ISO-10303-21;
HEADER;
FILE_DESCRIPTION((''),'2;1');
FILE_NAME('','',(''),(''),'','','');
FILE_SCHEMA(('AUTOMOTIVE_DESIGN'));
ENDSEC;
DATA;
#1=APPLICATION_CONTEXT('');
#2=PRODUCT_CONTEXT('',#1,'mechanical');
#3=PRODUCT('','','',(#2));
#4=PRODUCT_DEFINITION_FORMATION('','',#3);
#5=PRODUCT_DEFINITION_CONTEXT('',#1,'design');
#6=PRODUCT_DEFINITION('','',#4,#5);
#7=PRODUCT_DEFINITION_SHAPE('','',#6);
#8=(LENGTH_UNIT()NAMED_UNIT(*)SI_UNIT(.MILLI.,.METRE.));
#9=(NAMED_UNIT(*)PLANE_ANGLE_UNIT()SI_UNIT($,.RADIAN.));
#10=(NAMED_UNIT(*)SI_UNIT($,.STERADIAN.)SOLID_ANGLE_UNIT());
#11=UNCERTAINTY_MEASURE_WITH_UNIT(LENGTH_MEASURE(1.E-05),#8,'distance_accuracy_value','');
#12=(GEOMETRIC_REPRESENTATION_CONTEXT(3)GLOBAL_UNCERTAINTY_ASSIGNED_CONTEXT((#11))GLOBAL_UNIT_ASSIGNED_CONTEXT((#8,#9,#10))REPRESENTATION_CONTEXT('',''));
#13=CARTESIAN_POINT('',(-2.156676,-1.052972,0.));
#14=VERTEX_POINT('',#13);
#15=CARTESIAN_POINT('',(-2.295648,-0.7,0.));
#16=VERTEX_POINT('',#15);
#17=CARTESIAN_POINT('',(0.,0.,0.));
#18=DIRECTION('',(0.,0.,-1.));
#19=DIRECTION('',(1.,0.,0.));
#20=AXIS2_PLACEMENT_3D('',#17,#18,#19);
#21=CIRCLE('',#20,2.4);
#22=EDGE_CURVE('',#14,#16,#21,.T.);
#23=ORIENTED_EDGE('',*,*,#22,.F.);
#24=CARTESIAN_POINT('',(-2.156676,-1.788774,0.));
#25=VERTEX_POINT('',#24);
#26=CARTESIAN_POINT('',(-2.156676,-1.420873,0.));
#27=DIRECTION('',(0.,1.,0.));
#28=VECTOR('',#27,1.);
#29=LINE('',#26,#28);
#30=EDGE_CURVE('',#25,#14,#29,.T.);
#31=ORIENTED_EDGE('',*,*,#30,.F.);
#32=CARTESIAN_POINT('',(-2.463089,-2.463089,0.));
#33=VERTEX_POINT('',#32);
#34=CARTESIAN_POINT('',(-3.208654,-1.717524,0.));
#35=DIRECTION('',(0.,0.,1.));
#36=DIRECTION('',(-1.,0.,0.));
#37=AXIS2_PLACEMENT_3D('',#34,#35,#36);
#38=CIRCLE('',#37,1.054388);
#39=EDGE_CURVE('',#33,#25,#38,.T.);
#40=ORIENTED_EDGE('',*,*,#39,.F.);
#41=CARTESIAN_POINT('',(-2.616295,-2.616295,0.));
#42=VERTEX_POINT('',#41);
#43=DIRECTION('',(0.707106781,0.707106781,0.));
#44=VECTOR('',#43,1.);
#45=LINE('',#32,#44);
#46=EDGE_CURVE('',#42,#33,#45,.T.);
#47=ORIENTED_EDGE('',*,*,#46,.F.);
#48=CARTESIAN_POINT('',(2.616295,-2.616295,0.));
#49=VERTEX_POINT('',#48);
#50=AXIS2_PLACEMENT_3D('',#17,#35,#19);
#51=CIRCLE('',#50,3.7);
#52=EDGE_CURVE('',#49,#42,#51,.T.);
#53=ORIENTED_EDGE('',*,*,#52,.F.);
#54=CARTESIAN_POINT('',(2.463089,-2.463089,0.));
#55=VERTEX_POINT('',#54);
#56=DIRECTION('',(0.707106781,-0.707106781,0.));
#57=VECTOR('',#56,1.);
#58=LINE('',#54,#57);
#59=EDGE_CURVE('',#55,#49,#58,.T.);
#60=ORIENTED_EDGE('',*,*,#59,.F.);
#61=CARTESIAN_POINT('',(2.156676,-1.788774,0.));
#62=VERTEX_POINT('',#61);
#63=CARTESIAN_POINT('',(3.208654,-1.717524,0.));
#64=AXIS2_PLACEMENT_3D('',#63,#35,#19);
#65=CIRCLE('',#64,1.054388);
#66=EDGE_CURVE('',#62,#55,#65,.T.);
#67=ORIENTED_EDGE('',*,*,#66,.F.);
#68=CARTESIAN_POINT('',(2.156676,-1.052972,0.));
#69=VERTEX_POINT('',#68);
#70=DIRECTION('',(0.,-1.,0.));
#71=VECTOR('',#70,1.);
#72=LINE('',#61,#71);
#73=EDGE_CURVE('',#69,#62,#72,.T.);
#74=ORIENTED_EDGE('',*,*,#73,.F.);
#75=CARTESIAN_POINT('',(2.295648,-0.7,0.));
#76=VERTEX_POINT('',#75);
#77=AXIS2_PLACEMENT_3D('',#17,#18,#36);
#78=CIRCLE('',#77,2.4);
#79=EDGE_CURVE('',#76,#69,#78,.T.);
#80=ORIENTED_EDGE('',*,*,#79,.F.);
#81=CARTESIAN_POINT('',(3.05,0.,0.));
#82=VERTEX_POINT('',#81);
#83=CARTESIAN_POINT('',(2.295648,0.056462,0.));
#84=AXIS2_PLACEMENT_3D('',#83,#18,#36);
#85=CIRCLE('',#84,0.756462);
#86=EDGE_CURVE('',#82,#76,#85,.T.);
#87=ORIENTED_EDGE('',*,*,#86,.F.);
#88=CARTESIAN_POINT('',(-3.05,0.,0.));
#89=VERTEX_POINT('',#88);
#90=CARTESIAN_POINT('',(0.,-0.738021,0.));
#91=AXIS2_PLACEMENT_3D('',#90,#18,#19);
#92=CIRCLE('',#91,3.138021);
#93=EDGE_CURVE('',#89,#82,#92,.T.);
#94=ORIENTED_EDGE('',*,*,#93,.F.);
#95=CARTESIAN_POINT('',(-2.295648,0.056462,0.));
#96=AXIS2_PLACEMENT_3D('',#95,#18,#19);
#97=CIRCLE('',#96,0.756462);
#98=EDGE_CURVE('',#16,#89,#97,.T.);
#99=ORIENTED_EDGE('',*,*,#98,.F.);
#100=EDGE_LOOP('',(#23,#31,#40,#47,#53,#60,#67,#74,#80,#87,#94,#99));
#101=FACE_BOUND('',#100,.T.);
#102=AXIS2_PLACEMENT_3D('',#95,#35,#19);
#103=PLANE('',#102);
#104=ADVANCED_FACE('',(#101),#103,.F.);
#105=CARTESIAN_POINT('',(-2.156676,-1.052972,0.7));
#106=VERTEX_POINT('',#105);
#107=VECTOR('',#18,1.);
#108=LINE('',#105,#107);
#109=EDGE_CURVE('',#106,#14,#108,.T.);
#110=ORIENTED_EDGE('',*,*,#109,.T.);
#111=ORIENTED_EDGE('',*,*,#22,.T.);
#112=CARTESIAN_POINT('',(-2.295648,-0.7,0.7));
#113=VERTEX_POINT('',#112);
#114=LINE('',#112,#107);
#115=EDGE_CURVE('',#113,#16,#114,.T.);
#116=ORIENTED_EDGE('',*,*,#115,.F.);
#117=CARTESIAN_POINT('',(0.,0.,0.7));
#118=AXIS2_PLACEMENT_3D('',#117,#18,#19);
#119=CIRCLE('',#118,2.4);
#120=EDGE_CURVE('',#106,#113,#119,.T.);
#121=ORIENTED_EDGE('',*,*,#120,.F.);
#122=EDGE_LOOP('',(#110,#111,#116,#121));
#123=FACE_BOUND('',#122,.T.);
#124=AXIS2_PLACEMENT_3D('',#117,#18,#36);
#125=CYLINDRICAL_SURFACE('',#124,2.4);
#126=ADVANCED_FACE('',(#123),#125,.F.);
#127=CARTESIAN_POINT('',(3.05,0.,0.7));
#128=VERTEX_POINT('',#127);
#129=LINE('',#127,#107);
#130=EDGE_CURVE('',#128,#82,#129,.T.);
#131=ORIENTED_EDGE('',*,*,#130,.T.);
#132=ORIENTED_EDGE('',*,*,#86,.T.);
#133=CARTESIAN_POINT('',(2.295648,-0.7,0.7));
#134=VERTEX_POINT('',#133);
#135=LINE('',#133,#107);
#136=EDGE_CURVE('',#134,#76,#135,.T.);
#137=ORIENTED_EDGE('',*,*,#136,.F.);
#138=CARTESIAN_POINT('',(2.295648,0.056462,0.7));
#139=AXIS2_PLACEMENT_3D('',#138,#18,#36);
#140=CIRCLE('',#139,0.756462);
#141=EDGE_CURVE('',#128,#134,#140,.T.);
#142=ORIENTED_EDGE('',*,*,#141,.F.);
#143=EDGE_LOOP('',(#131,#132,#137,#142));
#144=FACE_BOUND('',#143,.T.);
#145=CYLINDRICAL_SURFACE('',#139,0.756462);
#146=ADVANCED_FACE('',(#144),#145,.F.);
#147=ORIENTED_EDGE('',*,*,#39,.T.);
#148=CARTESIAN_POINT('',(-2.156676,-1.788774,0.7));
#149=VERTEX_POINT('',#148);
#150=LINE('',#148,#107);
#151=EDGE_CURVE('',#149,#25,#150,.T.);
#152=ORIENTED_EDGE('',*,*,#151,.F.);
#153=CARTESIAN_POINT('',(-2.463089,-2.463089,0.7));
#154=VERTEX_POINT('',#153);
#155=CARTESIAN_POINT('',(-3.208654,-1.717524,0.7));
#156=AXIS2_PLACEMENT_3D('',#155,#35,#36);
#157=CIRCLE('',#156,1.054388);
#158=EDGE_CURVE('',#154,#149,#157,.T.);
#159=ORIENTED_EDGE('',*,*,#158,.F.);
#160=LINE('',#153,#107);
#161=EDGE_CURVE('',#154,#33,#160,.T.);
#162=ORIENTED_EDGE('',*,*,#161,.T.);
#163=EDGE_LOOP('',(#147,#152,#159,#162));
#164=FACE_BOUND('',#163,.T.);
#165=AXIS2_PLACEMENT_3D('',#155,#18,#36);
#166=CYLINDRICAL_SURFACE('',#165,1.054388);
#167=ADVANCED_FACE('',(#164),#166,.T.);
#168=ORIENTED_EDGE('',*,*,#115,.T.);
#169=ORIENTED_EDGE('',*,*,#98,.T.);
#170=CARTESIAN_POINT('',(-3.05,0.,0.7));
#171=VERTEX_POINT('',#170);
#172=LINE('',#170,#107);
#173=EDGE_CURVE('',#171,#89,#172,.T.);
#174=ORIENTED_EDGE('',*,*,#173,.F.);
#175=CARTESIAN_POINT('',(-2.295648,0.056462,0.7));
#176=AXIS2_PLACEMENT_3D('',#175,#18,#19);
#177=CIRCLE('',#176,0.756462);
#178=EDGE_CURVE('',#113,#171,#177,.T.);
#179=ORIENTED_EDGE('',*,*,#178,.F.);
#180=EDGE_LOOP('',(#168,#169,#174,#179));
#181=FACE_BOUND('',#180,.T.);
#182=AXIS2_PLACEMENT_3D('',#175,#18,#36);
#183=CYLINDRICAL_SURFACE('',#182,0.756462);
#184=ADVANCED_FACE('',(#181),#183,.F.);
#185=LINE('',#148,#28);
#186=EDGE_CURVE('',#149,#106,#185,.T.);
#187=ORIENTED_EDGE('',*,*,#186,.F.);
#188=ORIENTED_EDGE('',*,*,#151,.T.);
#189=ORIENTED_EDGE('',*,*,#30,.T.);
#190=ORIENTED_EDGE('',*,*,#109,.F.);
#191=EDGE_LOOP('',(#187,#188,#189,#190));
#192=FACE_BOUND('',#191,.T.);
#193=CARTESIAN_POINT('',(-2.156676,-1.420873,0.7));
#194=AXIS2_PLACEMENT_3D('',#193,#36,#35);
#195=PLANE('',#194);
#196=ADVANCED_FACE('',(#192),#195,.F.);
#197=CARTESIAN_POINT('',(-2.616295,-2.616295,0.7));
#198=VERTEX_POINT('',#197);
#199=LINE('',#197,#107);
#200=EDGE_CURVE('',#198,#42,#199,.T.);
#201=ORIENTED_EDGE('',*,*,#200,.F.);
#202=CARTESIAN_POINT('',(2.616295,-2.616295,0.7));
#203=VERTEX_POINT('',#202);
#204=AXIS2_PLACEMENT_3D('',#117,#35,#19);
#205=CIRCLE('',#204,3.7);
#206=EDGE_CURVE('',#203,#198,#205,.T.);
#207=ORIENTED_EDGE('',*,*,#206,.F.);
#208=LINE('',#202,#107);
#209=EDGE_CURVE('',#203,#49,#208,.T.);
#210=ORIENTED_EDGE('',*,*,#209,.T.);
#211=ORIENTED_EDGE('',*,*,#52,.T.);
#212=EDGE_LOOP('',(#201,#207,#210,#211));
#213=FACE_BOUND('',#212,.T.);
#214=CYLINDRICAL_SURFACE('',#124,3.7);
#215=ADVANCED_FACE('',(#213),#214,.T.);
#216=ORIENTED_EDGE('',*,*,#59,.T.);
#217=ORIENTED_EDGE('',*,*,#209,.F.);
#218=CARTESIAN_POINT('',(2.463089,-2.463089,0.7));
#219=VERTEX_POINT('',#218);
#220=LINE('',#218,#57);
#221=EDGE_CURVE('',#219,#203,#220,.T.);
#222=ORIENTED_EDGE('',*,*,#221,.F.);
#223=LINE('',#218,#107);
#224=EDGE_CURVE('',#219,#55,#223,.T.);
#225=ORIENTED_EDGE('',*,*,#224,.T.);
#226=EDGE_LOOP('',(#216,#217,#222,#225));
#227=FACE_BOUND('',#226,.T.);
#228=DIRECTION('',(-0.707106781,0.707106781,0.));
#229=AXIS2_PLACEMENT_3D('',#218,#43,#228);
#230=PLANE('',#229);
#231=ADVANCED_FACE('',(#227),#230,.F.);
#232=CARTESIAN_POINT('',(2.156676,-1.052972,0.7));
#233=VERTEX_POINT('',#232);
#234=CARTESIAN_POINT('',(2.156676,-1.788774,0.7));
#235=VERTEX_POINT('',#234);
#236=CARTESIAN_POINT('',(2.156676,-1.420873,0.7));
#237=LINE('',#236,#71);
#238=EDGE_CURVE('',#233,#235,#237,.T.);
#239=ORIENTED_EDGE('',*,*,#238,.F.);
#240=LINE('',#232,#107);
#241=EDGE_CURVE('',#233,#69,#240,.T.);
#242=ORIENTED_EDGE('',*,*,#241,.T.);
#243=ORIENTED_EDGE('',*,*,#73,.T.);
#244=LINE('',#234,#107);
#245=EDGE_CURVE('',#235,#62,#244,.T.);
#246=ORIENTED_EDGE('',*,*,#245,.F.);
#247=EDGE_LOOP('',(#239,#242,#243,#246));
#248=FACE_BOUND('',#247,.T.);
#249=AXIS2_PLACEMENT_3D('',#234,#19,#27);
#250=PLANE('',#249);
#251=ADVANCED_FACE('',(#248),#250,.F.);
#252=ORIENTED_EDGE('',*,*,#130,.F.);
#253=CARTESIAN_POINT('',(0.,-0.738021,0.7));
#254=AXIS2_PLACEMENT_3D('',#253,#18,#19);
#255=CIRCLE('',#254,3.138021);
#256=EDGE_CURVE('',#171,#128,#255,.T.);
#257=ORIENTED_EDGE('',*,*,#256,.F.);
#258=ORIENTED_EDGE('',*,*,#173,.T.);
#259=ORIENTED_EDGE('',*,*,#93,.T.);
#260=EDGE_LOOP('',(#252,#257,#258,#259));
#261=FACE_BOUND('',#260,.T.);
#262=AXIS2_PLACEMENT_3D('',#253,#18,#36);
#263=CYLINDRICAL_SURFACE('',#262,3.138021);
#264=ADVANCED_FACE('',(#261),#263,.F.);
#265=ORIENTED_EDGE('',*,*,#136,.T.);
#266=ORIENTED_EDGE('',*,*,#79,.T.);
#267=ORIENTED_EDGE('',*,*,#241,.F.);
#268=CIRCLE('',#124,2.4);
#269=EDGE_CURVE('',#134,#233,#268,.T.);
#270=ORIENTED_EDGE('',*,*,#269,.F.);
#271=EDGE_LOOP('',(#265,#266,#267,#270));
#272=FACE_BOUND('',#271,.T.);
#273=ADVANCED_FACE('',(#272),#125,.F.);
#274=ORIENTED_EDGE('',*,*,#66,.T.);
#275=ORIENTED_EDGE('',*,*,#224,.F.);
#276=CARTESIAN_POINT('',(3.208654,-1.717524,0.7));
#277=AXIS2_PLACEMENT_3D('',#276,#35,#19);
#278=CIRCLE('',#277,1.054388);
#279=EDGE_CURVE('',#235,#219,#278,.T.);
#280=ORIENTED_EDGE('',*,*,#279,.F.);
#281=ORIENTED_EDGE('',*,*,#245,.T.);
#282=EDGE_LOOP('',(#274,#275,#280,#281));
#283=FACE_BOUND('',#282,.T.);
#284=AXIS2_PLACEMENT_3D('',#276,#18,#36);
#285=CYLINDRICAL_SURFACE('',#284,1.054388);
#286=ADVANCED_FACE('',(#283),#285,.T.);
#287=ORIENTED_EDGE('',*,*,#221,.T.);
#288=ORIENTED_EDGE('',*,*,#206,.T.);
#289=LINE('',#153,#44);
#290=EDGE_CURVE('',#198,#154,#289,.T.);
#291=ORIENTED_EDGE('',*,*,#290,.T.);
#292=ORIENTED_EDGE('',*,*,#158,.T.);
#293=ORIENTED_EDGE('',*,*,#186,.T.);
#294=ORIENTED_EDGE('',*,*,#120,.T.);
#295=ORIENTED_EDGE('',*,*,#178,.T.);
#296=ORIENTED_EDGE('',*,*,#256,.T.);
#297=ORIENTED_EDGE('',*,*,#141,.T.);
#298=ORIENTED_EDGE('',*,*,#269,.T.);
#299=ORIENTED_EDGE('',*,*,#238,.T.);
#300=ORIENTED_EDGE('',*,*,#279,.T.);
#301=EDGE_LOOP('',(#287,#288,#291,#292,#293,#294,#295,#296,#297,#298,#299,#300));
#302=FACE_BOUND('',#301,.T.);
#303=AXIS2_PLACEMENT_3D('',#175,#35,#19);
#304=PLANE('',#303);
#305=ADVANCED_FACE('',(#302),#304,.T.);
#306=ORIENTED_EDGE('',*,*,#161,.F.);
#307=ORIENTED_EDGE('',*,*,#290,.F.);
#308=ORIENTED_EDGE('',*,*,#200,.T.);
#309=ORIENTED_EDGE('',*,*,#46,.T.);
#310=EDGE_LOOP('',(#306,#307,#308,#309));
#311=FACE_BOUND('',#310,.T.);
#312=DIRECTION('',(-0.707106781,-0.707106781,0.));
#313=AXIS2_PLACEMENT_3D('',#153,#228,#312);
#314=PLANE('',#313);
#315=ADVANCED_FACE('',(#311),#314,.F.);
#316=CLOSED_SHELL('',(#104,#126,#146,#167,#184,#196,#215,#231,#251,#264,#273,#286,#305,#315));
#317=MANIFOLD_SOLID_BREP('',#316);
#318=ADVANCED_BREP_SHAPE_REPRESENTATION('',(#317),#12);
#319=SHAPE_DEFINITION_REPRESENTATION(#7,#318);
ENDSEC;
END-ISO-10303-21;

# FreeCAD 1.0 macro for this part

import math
import FreeCAD as App
import Part
import Sketcher
from FreeCAD import Vector
Q = App.Units.Quantity

doc = App.newDocument("Part")
body = doc.addObject("PartDesign::Body", "Body")

# Sketch on XY plane
sketch1 = doc.addObject("Sketcher::SketchObject", "Sketch")
body.addObject(sketch1)
sketch1.AttachmentSupport = (doc.XY_Plane, [""])
sketch1.MapMode = "FlatFace"
sketch1.addGeometry(Part.LineSegment(Vector(-2.16, -1.79, 0), Vector(-2.16, -1.05, 0)), False)
sketch1.addGeometry(Part.ArcOfCircle(Part.Circle(Vector(0, 0, 0), Vector(0, 0, 1), 2.4), math.radians(-163.04), math.radians(-153.98)), False)
sketch1.addGeometry(Part.ArcOfCircle(Part.Circle(Vector(-2.3, 0.06, 0), Vector(0, 0, 1), 0.76), math.radians(-176), math.radians(-90)), False)
sketch1.addGeometry(Part.ArcOfCircle(Part.Circle(Vector(0, -0.74, 0), Vector(0, 0, 1), 3.14), math.radians(14), math.radians(166)), False)
sketch1.addGeometry(Part.ArcOfCircle(Part.Circle(Vector(2.3, 0.06, 0), Vector(0, 0, 1), 0.76), math.radians(-90), math.radians(-4)), False)
sketch1.addGeometry(Part.ArcOfCircle(Part.Circle(Vector(0, 0, 0), Vector(0, 0, 1), 2.4), math.radians(-26.02), math.radians(-16.96)), False)
sketch1.addGeometry(Part.LineSegment(Vector(2.16, -1.05, 0), Vector(2.16, -1.79, 0)), False)
sketch1.addGeometry(Part.ArcOfCircle(Part.Circle(Vector(3.21, -1.72, 0), Vector(0, 0, 1), 1.05), math.radians(-176), math.radians(-135)), False)
sketch1.addGeometry(Part.LineSegment(Vector(2.46, -2.46, 0), Vector(2.62, -2.62, 0)), False)
sketch1.addGeometry(Part.ArcOfCircle(Part.Circle(Vector(0, 0, 0), Vector(0, 0, 1), 3.7), math.radians(-45), math.radians(225)), False)
sketch1.addGeometry(Part.LineSegment(Vector(-2.62, -2.62, 0), Vector(-2.46, -2.46, 0)), False)
sketch1.addGeometry(Part.ArcOfCircle(Part.Circle(Vector(-3.21, -1.72, 0), Vector(0, 0, 1), 1.05), math.radians(-45), math.radians(-4)), False)
sketch1.addConstraint(Sketcher.Constraint("Coincident", 0, 2, 1, 2))
sketch1.addConstraint(Sketcher.Constraint("Coincident", 1, 1, 2, 2))
sketch1.addConstraint(Sketcher.Constraint("Coincident", 2, 1, 3, 2))
sketch1.addConstraint(Sketcher.Constraint("Coincident", 3, 1, 4, 2))
sketch1.addConstraint(Sketcher.Constraint("Coincident", 4, 1, 5, 2))
sketch1.addConstraint(Sketcher.Constraint("Coincident", 5, 1, 6, 1))
sketch1.addConstraint(Sketcher.Constraint("Coincident", 6, 2, 7, 1))
sketch1.addConstraint(Sketcher.Constraint("Tangent", 7, 2, 8, 1))
sketch1.addConstraint(Sketcher.Constraint("Coincident", 8, 2, 9, 1))
sketch1.addConstraint(Sketcher.Constraint("Coincident", 9, 2, 10, 1))
sketch1.addConstraint(Sketcher.Constraint("Tangent", 10, 2, 11, 1))
sketch1.addConstraint(Sketcher.Constraint("Coincident", 11, 2, 0, 1))
sketch1.addConstraint(Sketcher.Constraint("Vertical", 0))
sketch1.addConstraint(Sketcher.Constraint("Vertical", 6))
sketch1.addConstraint(Sketcher.Constraint("Coincident", 1, 3, -1, 1))
sketch1.addConstraint(Sketcher.Constraint("Coincident", 5, 3, -1, 1))
sketch1.addConstraint(Sketcher.Constraint("Coincident", 9, 3, -1, 1))
sketch1.addConstraint(Sketcher.Constraint("Equal", 2, 4))
sketch1.addConstraint(Sketcher.Constraint("Equal", 1, 5))
sketch1.addConstraint(Sketcher.Constraint("Equal", 7, 11))
sketch1.addConstraint(Sketcher.Constraint("Symmetric", 2, 1, 3, 1, -1, 1))
sketch1.addConstraint(Sketcher.Constraint("Symmetric", 2, 3, 4, 3, -2))
sketch1.addConstraint(Sketcher.Constraint("Symmetric", 7, 3, 11, 3, -2))
sketch1.addConstraint(Sketcher.Constraint("Perpendicular", 8, 10))
sketch1.addConstraint(Sketcher.Constraint("Horizontal", 0, 2, 5, 1))
sketch1.addConstraint(Sketcher.Constraint("Horizontal", 8, 2, 9, 2))
sketch1.addConstraint(Sketcher.Constraint("Vertical", 2, 3, 1, 1))
sketch1.addConstraint(Sketcher.Constraint("Radius", 1, Q("2.4 mm")))
sketch1.addConstraint(Sketcher.Constraint("Radius", 9, Q("3.7 mm")))
sketch1.addConstraint(Sketcher.Constraint("DistanceY", 1, 1, -1, 1, Q("0.7 mm")))
sketch1.addConstraint(Sketcher.Constraint("DistanceX", 2, 1, -1, 1, Q("3.05 mm")))
sketch1.addConstraint(Sketcher.Constraint("Radius", 3, Q("3.138021 mm")))
sketch1.addConstraint(Sketcher.Constraint("Radius", 7, Q("1.054388 mm")))
sketch1.addConstraint(Sketcher.Constraint("DistanceX", 2, 3, 7, 3, Q("5.504302 mm")))
sketch1.addConstraint(Sketcher.Constraint("DistanceY", 0, 1, 0, 2, Q("0.735802 mm")))
sketch1.addConstraint(Sketcher.Constraint("DistanceY", 0, 2, -1, 1, Q("1.052972 mm")))
pad1 = doc.addObject("PartDesign::Pad", "Pad")
body.addObject(pad1)
pad1.Profile = sketch1
pad1.Length = 0.7

doc.recompute()
